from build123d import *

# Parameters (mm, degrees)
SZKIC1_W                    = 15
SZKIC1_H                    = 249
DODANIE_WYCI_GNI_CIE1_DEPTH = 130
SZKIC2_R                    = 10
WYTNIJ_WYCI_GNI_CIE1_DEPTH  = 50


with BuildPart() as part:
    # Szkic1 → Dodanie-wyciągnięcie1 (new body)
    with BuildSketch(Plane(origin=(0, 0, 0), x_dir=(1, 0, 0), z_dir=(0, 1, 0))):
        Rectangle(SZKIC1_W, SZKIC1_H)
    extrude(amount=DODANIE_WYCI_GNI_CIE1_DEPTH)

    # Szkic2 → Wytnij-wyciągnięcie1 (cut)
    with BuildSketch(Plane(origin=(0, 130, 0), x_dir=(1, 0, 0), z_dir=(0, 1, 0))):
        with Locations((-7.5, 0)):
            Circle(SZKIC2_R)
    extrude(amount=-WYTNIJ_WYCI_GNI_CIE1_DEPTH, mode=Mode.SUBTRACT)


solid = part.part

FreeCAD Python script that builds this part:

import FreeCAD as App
import Part
import Sketcher

V = App.Vector


def add_polygon(sketch, points):
    """Adds a closed chain of lines whose ends are joined by coincident constraints."""
    first, n = sketch.GeometryCount, len(points)
    for a, b in zip(points, points[1:] + points[:1]):
        sketch.addGeometry(Part.LineSegment(App.Vector(*a, 0), App.Vector(*b, 0)), False)
    for i in range(n):
        sketch.addConstraint(Sketcher.Constraint("Coincident", first + i, 2, first + (i + 1) % n, 1))

doc = App.newDocument("Part")
body = doc.addObject("PartDesign::Body", "Body")

# Sketch on XZ plane
sketch1 = doc.addObject("Sketcher::SketchObject", "Sketch")
body.addObject(sketch1)
sketch1.AttachmentSupport = (doc.XZ_Plane, [""])
sketch1.MapMode = "FlatFace"
add_polygon(sketch1, [(-8, -124), (-8, 124), (8, 124), (8, -124)])  # lines 0-3
sketch1.addConstraint([
    Sketcher.Constraint("Vertical", 0),
    Sketcher.Constraint("Horizontal", 1),
    Sketcher.Constraint("Vertical", 2),
    Sketcher.Constraint("Horizontal", 3),
    Sketcher.Constraint("Symmetric", 0, 2, 2, 2, -1, 1),
    Sketcher.Constraint("DistanceX", 1, 1, 1, 2, 15.0),
    Sketcher.Constraint("DistanceY", 0, 1, 0, 2, 249.0),
])
pad1 = doc.addObject("PartDesign::Pad", "Pad")
body.addObject(pad1)
pad1.Profile = sketch1
pad1.Length = 130
pad1.Reversed = True

# Sketch on XZ plane
sketch2 = doc.addObject("Sketcher::SketchObject", "Sketch001")
body.addObject(sketch2)
sketch2.AttachmentSupport = (doc.XZ_Plane, [""])
sketch2.MapMode = "FlatFace"
sketch2.AttachmentOffset = App.Placement(V(0, 0, -130), App.Rotation())
sketch2.addGeometry(Part.Circle(V(-8, 0, 0), V(0, 0, 1), 10), False)
sketch2.addConstraint([
    Sketcher.Constraint("PointOnObject", 0, 3, -1),
    Sketcher.Constraint("Diameter", 0, 20.0),
    Sketcher.Constraint("DistanceX", 0, 3, -1, 1, 7.5),
])
pocket1 = doc.addObject("PartDesign::Pocket", "Pocket")
body.addObject(pocket1)
pocket1.Profile = sketch2
pocket1.Length = 50
pocket1.Reversed = True

doc.recompute()
